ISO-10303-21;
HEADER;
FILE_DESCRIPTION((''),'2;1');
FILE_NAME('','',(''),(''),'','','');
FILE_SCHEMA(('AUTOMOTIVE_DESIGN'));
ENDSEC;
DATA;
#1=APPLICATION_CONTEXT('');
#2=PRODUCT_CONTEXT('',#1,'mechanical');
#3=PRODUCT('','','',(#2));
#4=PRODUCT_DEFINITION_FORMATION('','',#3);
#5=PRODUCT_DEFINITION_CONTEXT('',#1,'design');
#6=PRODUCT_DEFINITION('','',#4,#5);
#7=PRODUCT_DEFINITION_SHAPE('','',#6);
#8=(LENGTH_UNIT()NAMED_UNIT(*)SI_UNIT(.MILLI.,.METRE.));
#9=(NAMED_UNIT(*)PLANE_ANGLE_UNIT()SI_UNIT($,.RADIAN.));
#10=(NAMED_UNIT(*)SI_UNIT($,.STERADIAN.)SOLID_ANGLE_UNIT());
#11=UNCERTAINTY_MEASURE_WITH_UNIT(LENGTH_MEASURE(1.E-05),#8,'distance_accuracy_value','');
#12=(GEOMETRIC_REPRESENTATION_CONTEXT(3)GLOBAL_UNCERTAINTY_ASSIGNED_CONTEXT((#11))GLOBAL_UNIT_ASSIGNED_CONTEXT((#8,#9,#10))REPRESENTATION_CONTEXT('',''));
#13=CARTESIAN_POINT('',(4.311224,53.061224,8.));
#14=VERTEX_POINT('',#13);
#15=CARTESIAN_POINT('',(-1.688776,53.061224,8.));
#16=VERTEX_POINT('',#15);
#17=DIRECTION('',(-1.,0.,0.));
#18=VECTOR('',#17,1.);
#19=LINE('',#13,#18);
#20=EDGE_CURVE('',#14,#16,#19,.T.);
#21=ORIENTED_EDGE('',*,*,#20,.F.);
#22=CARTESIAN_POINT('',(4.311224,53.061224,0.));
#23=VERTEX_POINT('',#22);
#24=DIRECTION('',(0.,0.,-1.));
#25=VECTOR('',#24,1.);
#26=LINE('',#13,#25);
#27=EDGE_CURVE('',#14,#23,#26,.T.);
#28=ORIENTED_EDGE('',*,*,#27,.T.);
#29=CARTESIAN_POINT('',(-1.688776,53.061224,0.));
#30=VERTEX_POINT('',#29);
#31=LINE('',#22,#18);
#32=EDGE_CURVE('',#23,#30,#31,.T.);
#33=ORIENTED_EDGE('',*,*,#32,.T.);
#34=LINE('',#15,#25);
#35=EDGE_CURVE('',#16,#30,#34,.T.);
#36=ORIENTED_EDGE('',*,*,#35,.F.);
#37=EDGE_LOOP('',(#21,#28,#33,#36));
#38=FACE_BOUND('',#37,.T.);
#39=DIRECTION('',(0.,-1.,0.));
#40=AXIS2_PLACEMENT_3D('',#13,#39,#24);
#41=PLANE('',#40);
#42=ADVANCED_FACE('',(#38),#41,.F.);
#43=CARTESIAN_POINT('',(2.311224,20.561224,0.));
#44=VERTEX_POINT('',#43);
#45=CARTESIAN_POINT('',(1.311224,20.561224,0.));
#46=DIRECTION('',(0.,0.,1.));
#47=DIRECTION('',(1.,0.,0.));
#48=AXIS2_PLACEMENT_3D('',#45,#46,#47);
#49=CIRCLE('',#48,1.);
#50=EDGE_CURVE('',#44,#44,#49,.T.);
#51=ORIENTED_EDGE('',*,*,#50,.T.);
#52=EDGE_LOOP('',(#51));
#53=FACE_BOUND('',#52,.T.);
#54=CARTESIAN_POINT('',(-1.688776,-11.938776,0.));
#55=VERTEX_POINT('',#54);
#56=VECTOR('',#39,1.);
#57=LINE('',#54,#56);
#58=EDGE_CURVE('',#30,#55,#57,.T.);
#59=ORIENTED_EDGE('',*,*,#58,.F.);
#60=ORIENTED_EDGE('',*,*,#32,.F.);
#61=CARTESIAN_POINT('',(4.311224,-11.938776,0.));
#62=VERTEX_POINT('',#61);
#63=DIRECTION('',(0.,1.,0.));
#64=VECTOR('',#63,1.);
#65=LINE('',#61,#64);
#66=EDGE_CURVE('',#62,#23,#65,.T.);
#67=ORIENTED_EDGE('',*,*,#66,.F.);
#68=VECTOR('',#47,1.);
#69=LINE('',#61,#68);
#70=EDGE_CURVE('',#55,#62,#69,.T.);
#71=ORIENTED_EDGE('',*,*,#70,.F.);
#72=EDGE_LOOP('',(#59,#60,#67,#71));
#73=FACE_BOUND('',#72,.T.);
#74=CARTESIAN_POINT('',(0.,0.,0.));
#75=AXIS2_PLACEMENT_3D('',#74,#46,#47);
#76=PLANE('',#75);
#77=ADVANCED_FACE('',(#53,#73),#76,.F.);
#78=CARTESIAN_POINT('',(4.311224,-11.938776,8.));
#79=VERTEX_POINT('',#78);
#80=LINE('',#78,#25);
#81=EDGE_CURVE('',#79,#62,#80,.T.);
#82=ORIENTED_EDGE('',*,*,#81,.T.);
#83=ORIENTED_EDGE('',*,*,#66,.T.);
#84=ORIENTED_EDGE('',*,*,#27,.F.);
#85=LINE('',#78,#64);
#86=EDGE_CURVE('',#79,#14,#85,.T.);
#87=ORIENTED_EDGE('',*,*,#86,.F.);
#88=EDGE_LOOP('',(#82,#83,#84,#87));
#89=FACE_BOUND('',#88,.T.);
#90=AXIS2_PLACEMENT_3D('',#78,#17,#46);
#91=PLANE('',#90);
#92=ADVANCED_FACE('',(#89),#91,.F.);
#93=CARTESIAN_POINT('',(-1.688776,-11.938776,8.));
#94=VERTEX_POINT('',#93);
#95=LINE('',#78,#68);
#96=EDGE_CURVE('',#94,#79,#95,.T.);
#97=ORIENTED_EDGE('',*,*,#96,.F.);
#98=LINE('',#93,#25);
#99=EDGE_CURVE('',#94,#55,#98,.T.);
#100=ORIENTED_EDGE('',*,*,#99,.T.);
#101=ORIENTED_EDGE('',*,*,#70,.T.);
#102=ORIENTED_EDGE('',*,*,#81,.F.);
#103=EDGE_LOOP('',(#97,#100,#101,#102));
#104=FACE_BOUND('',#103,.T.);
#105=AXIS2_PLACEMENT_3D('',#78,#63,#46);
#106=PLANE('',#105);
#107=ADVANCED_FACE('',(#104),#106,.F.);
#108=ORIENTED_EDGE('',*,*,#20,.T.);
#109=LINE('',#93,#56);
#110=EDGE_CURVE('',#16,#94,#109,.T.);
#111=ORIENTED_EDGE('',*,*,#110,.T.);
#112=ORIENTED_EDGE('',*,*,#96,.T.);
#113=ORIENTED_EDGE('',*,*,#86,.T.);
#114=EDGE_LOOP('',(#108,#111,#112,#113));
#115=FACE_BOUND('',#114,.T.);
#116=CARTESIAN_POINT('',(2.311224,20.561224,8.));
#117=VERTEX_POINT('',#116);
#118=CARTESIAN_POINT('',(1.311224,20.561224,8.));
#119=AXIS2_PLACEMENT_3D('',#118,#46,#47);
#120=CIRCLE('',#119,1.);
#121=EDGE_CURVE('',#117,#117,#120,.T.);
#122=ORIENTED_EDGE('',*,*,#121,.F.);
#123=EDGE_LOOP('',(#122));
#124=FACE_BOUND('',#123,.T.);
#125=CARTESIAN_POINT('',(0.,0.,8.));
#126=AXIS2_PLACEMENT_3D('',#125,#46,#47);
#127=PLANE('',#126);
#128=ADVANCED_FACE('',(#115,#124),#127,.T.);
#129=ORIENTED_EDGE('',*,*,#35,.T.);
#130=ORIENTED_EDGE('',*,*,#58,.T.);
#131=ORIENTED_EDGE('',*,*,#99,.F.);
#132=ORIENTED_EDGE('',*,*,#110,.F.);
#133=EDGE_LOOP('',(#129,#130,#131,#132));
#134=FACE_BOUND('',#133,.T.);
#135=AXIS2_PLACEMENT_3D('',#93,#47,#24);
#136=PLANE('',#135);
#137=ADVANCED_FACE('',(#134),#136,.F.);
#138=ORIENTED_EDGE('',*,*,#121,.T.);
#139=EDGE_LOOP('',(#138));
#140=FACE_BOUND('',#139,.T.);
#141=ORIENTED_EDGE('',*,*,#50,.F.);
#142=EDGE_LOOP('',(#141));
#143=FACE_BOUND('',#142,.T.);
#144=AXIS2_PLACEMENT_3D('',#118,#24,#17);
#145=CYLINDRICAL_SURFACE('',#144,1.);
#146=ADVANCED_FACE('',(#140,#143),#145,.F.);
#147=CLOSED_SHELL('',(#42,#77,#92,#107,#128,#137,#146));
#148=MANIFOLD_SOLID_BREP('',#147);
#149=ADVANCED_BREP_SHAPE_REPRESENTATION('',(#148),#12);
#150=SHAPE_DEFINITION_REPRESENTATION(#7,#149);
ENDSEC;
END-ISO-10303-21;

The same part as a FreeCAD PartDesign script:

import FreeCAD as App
import Part
import Sketcher

V = App.Vector
Q = App.Units.Quantity

doc = App.newDocument("Part")
params = doc.addObject("Spreadsheet::Sheet", "Params")
for row, (alias, value) in enumerate([
    ("sketch1_diameter", "2 mm"),
    ("sketch1_width", "6 mm"),
    ("sketch1_height", "65 mm"),
    ("pad1_length", "8 mm"),
], start=1):
    params.set(f"A{row}", alias)
    params.set(f"B{row}", "=" + value)
    params.setAlias(f"B{row}", alias)

body = doc.addObject("PartDesign::Body", "Body")

sketch1 = doc.addObject("Sketcher::SketchObject", "Sketch")
body.addObject(sketch1)
sketch1.AttachmentSupport = (doc.XY_Plane, [""])
sketch1.MapMode = "FlatFace"
sketch1.addGeometry([
    Part.LineSegment(V(-1.7, 53.1, 0), V(-1.7, -11.9, 0)),
    Part.LineSegment(V(-1.7, -11.9, 0), V(4.3, -11.9, 0)),
    Part.LineSegment(V(4.3, -11.9, 0), V(4.3, 53.1, 0)),
    Part.LineSegment(V(4.3, 53.1, 0), V(-1.7, 53.1, 0)),
    Part.Circle(V(1.3, 20.6, 0), V(0, 0, 1), 1),
], False)
sketch1.addConstraint([
    Sketcher.Constraint("Coincident", 0, 2, 1, 1),
    Sketcher.Constraint("Coincident", 1, 2, 2, 1),
    Sketcher.Constraint("Coincident", 2, 2, 3, 1),
    Sketcher.Constraint("Coincident", 3, 2, 0, 1),
    Sketcher.Constraint("Vertical", 0),
    Sketcher.Constraint("Horizontal", 1),
    Sketcher.Constraint("Vertical", 2),
    Sketcher.Constraint("Horizontal", 3),
    Sketcher.Constraint("Diameter", 4, Q("2 mm")),
    Sketcher.Constraint("DistanceX", 1, 1, 1, 2, Q("6 mm")),
    Sketcher.Constraint("DistanceY", 0, 2, 0, 1, Q("65 mm")),
    Sketcher.Constraint("DistanceX", 0, 2, 4, 3, Q("3 mm")),
    Sketcher.Constraint("DistanceY", 0, 2, 4, 3, Q("32.5 mm")),
    Sketcher.Constraint("DistanceX", -1, 1, 4, 3, Q("1.311224 mm")),
    Sketcher.Constraint("DistanceY", -1, 1, 4, 3, Q("20.561224 mm")),
])
sketch1.setExpression("Constraints[8]", "Params.sketch1_diameter")
sketch1.setExpression("Constraints[9]", "Params.sketch1_width")
sketch1.setExpression("Constraints[10]", "Params.sketch1_height")
pad1 = doc.addObject("PartDesign::Pad", "Pad")
body.addObject(pad1)
pad1.Profile = sketch1
pad1.setExpression("Length", "Params.pad1_length")

doc.recompute()
